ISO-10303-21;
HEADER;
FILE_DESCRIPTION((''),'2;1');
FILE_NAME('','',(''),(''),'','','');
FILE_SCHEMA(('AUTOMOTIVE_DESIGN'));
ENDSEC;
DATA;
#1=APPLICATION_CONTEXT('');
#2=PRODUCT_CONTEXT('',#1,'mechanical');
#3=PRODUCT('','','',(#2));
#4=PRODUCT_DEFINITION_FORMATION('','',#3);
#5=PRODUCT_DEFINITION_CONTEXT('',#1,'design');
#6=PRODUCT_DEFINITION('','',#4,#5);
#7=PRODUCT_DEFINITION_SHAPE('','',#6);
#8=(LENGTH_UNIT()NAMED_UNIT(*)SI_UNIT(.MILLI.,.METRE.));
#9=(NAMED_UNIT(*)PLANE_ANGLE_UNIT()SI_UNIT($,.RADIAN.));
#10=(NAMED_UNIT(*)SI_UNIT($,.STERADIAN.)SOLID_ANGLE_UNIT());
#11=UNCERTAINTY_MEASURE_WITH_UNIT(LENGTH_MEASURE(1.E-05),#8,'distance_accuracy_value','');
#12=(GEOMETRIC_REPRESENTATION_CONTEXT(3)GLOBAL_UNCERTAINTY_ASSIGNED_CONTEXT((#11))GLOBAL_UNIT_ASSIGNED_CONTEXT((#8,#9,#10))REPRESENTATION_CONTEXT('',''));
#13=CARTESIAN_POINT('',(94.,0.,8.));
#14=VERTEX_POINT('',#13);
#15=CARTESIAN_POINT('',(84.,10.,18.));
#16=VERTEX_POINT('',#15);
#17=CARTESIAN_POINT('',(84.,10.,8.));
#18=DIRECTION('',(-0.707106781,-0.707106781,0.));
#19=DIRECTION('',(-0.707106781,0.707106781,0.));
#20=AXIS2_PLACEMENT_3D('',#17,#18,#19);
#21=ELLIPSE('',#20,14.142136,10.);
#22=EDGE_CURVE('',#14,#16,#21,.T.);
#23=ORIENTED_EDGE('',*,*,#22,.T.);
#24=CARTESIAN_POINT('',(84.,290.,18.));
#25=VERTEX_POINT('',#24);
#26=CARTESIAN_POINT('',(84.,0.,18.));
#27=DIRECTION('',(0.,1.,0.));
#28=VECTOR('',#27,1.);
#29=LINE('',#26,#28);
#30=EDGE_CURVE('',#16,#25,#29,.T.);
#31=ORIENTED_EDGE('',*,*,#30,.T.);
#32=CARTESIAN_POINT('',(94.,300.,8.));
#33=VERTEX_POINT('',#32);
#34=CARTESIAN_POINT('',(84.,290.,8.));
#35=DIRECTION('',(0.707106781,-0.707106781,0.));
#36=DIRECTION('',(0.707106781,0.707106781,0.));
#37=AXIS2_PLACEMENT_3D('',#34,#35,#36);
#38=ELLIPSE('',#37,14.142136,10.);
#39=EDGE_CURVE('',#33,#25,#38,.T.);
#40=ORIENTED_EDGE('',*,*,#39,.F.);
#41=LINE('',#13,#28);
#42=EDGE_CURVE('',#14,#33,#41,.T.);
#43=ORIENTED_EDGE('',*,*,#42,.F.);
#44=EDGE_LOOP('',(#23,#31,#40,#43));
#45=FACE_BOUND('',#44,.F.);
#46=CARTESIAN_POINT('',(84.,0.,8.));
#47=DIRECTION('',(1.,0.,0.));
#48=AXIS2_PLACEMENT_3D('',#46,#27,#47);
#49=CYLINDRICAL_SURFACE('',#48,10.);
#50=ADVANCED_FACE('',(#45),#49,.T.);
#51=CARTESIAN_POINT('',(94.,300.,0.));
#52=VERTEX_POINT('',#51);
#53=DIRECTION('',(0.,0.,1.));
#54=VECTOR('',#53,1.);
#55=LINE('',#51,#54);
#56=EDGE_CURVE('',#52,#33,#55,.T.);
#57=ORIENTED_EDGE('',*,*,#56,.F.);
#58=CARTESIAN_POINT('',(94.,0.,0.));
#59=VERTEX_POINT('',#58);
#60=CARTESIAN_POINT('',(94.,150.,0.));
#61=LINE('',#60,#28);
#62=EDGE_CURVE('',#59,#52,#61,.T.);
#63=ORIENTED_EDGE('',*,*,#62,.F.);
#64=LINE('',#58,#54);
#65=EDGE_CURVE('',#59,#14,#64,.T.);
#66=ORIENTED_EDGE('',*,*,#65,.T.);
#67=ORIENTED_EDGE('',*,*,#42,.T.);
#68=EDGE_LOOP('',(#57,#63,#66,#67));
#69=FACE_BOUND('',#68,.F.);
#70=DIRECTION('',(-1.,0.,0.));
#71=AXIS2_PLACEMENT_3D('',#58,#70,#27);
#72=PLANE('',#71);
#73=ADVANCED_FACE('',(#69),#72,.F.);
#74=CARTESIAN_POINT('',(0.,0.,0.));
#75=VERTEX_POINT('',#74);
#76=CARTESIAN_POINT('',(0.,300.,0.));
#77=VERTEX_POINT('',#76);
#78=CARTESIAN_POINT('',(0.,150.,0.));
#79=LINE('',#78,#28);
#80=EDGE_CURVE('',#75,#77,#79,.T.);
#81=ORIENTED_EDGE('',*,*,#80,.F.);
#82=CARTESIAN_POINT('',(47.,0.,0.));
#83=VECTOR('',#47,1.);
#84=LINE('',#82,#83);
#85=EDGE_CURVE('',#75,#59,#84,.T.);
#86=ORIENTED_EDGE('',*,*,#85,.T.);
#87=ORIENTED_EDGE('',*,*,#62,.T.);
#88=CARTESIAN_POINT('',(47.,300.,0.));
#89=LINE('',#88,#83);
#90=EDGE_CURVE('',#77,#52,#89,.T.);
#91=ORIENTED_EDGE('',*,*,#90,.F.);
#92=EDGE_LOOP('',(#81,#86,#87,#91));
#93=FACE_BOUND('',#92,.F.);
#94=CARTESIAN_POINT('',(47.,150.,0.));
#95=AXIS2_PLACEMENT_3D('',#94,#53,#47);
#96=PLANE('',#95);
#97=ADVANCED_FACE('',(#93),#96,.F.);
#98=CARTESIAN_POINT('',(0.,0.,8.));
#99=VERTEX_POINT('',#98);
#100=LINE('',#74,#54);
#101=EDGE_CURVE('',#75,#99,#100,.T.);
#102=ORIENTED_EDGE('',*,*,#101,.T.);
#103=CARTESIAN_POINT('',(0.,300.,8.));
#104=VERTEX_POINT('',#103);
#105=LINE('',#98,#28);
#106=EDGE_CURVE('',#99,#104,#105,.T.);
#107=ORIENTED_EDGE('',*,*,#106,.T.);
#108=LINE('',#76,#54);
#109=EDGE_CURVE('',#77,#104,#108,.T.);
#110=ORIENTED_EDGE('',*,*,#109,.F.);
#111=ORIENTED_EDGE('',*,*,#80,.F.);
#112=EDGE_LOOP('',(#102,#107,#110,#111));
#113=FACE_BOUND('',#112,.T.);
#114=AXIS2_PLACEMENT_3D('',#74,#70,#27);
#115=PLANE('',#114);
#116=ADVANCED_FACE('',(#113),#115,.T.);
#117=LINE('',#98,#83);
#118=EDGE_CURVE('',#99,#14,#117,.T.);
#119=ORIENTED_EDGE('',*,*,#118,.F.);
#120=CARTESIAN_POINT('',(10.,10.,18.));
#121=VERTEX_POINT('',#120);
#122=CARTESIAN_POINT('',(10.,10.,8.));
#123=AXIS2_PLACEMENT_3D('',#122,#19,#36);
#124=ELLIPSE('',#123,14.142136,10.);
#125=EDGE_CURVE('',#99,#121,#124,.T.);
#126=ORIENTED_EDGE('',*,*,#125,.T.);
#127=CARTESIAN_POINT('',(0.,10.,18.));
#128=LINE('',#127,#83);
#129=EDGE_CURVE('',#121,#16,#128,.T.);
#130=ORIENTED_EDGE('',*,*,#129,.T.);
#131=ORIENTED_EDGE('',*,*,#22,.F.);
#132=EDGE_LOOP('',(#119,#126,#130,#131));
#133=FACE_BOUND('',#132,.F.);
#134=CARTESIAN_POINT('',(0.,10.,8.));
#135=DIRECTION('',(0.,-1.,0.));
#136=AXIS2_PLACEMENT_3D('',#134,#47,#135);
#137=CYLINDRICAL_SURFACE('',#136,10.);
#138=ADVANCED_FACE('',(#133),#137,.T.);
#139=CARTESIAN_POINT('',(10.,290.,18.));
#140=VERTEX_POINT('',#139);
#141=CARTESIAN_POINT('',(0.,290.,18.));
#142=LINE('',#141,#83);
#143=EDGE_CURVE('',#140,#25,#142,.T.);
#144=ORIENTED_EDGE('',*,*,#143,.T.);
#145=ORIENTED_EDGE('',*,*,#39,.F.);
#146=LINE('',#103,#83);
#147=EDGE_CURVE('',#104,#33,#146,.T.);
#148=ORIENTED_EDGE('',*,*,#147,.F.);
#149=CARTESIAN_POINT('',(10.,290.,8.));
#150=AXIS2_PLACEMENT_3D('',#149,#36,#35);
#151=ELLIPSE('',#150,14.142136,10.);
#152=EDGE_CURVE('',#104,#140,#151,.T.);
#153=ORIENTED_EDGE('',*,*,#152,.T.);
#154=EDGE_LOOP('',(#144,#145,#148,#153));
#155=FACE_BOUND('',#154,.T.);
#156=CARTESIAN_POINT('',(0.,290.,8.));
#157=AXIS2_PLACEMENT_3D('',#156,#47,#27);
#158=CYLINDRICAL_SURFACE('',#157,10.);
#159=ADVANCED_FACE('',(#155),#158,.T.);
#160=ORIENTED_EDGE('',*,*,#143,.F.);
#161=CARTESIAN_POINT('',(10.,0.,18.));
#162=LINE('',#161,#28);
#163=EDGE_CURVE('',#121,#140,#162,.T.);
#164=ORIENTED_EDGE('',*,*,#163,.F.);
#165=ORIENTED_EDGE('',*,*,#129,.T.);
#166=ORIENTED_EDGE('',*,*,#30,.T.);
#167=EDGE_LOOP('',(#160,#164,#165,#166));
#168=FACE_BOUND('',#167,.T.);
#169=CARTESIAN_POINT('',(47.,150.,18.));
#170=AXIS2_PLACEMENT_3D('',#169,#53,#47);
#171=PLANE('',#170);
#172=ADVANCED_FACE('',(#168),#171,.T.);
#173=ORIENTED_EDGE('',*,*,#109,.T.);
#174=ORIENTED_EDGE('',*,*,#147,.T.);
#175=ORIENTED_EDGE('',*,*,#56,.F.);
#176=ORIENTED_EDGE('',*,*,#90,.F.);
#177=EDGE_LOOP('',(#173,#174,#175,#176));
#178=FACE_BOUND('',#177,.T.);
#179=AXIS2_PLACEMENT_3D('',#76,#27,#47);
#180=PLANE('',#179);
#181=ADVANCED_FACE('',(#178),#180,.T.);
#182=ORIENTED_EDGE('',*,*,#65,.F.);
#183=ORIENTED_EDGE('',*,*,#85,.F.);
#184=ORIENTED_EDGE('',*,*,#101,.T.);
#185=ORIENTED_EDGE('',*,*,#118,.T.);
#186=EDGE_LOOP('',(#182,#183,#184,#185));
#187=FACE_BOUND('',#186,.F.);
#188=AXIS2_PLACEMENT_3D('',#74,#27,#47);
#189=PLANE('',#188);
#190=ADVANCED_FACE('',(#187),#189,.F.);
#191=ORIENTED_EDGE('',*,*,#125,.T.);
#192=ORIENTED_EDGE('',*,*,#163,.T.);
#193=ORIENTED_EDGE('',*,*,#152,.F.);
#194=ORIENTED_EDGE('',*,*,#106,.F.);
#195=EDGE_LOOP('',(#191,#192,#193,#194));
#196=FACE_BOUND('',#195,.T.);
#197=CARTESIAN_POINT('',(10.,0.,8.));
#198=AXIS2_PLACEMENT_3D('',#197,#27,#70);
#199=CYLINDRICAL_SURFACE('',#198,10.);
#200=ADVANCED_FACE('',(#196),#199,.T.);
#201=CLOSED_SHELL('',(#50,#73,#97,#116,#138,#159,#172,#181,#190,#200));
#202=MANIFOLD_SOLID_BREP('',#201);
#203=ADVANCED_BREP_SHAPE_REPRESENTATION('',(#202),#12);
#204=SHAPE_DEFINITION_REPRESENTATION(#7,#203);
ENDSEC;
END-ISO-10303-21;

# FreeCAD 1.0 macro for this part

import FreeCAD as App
import Part
import Sketcher


def edges_at(feature, points):
    """Names of the edges that pass closest to the given points."""
    edges = feature.Shape.Edges
    near = lambda p: min(range(len(edges)), key=lambda i: edges[i].distToShape(Part.Vertex(*p))[0])
    return sorted({f"Edge{near(p) + 1}" for p in points})


def add_polygon(sketch, points):
    """Adds a closed chain of lines whose ends are joined by coincident constraints."""
    first, n = sketch.GeometryCount, len(points)
    for a, b in zip(points, points[1:] + points[:1]):
        sketch.addGeometry(Part.LineSegment(App.Vector(*a, 0), App.Vector(*b, 0)), False)
    for i in range(n):
        sketch.addConstraint(Sketcher.Constraint("Coincident", first + i, 2, first + (i + 1) % n, 1))

doc = App.newDocument("Part")
params = doc.addObject("Spreadsheet::Sheet", "Params")
for row, (alias, value) in enumerate([
    ("sketch1_width", "94 mm"),
    ("sketch1_height", "300 mm"),
    ("pad1_length", "18 mm"),
    ("fillet_radius", "10 mm"),
], start=1):
    params.set(f"A{row}", alias)
    params.set(f"B{row}", "=" + value)
    params.setAlias(f"B{row}", alias)

body = doc.addObject("PartDesign::Body", "Body")

# Sketch on XY plane
sketch1 = body.newObject("Sketcher::SketchObject", "Sketch")
sketch1.AttachmentSupport = (doc.getObject("XY_Plane"), [""])
sketch1.MapMode = "FlatFace"
add_polygon(sketch1, [(0, 300), (0, 0), (94, 0), (94, 300)])  # lines 0-3
sketch1.addConstraint(Sketcher.Constraint("Vertical", 0))
sketch1.addConstraint(Sketcher.Constraint("Horizontal", 1))
sketch1.addConstraint(Sketcher.Constraint("Vertical", 2))
sketch1.addConstraint(Sketcher.Constraint("Horizontal", 3))
sketch1.addConstraint(Sketcher.Constraint("Coincident", 0, 2, -1, 1))
sketch1.addConstraint(Sketcher.Constraint("DistanceX", 1, 1, 1, 2, 94.0))
sketch1.addConstraint(Sketcher.Constraint("DistanceY", 0, 2, 0, 1, 300.0))
sketch1.setExpression("Constraints[9]", "Params.sketch1_width")
sketch1.setExpression("Constraints[10]", "Params.sketch1_height")
pad1 = body.newObject("PartDesign::Pad", "Pad")
pad1.Profile = sketch1
pad1.setExpression("Length", "Params.pad1_length")
doc.recompute()

fillet = body.newObject("PartDesign::Fillet", "Fillet")
fillet.Base = (pad1, edges_at(pad1, [
    (47, 300, 18),
    (94, 150, 18),
    (47, 0, 18),
    (0, 150, 18),
]))
fillet.setExpression("Radius", "Params.fillet_radius")

doc.recompute()
